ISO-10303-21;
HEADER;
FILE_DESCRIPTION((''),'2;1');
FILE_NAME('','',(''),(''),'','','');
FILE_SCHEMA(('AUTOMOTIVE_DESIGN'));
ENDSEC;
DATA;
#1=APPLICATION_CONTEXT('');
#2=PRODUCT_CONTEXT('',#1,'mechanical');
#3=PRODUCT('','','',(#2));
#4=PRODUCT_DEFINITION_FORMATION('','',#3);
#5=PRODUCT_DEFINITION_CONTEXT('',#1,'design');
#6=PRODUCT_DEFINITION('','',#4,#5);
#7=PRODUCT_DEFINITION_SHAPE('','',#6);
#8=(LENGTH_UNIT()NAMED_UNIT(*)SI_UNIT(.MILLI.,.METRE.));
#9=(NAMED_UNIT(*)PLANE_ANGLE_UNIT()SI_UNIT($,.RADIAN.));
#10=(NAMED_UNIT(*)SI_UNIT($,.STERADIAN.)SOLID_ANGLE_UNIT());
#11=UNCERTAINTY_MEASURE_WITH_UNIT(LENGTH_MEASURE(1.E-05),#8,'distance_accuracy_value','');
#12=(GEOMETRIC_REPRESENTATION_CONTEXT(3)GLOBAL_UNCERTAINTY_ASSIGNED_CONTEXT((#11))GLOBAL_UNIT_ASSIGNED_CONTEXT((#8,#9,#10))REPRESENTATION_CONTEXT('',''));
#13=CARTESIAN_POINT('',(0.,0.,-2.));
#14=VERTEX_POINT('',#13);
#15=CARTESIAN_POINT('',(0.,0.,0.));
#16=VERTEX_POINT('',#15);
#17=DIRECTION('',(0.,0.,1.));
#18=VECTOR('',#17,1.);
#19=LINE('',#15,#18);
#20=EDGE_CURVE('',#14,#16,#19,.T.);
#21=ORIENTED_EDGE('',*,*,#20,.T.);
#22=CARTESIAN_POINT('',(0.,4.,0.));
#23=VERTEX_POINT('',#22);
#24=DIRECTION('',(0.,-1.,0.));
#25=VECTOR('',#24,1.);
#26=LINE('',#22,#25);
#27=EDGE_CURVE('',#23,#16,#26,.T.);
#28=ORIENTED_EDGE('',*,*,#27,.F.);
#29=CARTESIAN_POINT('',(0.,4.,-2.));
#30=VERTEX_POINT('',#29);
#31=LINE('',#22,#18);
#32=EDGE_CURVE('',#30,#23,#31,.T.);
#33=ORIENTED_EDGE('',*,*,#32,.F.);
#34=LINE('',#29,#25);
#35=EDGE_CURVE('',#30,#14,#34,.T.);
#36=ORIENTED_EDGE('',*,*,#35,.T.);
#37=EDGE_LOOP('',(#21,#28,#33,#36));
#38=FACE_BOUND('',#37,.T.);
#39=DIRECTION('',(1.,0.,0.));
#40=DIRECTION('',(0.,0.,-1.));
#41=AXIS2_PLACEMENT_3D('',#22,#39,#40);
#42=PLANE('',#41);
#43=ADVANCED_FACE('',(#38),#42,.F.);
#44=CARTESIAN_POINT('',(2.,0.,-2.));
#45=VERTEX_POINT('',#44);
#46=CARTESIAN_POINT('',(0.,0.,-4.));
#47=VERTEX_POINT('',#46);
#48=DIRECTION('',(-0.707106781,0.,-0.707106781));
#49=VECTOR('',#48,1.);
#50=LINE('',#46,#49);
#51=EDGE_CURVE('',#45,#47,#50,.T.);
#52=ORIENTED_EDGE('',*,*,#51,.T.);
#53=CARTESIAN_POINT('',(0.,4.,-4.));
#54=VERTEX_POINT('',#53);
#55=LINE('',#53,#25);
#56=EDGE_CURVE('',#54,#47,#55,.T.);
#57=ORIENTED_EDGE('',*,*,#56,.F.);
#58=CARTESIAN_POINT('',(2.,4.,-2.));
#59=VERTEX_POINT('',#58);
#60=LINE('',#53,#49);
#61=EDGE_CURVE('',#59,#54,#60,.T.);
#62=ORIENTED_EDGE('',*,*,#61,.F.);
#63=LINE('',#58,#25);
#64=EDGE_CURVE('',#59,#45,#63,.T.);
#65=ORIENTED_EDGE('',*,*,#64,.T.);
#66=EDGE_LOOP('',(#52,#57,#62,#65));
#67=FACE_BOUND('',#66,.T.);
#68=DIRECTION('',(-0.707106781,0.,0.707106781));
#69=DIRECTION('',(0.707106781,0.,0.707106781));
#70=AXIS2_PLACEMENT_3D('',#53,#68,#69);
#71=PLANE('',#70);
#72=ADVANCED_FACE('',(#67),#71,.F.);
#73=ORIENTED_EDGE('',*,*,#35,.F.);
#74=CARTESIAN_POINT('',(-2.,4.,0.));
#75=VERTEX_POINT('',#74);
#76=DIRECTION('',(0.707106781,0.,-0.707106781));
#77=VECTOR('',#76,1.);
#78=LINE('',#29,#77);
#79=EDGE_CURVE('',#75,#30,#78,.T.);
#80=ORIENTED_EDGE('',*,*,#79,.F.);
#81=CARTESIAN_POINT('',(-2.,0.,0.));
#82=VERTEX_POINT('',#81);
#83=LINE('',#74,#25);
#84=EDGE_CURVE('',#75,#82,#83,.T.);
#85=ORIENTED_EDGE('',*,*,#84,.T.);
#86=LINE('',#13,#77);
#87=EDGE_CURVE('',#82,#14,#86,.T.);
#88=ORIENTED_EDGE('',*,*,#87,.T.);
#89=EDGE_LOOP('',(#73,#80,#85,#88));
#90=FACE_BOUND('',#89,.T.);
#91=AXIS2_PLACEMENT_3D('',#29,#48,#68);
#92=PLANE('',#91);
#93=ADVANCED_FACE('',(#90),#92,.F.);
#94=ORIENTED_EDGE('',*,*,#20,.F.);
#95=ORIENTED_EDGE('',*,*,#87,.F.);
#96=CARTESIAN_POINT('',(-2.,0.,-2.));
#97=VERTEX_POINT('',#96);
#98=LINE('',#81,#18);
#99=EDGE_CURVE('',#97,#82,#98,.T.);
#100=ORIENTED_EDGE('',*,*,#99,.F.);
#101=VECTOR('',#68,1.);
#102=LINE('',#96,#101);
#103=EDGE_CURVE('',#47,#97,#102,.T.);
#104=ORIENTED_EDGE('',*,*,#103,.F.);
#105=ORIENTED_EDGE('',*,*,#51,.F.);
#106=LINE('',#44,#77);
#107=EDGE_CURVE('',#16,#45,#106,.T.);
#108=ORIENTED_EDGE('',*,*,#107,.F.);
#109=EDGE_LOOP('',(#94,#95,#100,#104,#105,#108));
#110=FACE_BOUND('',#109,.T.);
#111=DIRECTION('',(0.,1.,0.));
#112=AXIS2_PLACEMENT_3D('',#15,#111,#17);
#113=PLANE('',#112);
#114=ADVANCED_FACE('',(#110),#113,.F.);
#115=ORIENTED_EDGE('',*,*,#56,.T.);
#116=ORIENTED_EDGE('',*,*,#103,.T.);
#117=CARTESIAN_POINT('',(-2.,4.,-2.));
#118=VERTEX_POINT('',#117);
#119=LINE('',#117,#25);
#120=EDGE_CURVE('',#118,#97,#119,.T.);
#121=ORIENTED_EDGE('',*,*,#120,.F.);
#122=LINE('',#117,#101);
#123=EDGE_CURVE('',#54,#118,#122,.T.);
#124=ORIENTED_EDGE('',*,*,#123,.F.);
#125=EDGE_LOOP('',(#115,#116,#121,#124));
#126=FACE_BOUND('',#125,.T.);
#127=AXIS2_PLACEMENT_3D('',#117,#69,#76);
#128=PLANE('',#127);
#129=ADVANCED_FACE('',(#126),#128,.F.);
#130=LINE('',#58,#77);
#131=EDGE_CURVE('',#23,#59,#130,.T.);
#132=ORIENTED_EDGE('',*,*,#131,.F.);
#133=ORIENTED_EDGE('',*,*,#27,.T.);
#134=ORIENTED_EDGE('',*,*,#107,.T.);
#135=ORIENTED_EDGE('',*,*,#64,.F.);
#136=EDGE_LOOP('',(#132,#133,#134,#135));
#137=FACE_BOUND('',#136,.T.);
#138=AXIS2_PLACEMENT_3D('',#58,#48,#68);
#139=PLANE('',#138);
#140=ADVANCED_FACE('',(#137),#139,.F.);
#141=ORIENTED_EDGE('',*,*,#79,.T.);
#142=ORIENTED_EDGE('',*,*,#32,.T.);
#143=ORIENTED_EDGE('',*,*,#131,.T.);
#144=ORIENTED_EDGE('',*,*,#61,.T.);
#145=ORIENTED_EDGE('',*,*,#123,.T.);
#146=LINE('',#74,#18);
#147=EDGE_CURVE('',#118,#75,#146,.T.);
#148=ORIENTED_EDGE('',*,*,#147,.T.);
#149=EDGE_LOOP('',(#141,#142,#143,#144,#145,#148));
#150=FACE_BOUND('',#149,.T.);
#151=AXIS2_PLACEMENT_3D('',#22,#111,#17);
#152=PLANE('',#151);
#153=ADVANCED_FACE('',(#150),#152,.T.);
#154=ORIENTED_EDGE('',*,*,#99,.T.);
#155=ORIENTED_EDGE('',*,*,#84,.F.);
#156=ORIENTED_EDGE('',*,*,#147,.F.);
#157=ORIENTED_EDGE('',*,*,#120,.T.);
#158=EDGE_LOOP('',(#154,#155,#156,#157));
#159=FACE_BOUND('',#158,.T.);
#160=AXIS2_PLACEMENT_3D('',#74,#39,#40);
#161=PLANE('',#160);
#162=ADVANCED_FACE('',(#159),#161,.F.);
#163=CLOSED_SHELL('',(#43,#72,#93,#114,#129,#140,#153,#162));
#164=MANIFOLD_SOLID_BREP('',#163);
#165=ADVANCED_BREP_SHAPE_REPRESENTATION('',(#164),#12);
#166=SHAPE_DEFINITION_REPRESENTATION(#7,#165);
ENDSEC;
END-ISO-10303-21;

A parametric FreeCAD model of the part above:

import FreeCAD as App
import Part
import Sketcher

V = App.Vector


def add_polygon(sketch, points):
    """Adds a closed chain of lines whose ends are joined by coincident constraints."""
    first, n = sketch.GeometryCount, len(points)
    for a, b in zip(points, points[1:] + points[:1]):
        sketch.addGeometry(Part.LineSegment(App.Vector(*a, 0), App.Vector(*b, 0)), False)
    for i in range(n):
        sketch.addConstraint(Sketcher.Constraint("Coincident", first + i, 2, first + (i + 1) % n, 1))

doc = App.newDocument("Part")
body = doc.addObject("PartDesign::Body", "Body")

# Sketch on XZ plane
sketch1 = doc.addObject("Sketcher::SketchObject", "Sketch")
body.addObject(sketch1)
sketch1.AttachmentSupport = (doc.XZ_Plane, [""])
sketch1.MapMode = "FlatFace"
add_polygon(sketch1, [(0, -2), (0, 0), (2, -2), (0, -4), (-2, -2), (-2, 0)])  # lines 0-5
sketch1.addConstraint([
    Sketcher.Constraint("Vertical", 0),
    Sketcher.Constraint("Vertical", 4),
    Sketcher.Constraint("Coincident", 0, 2, -1, 1),
    Sketcher.Constraint("Symmetric", 1, 2, 3, 2, -2),
    Sketcher.Constraint("PointOnObject", 2, 2, -2),
    Sketcher.Constraint("PointOnObject", 4, 2, -1),
    Sketcher.Constraint("Perpendicular", 1, 2),
    Sketcher.Constraint("Perpendicular", 2, 3),
    Sketcher.Constraint("Parallel", 3, 5),
    Sketcher.Constraint("DistanceY", 0, 1, 0, 2, 2.0),
])
pad1 = doc.addObject("PartDesign::Pad", "Pad")
body.addObject(pad1)
pad1.Profile = sketch1
pad1.Length = 4
pad1.Reversed = True

doc.recompute()
